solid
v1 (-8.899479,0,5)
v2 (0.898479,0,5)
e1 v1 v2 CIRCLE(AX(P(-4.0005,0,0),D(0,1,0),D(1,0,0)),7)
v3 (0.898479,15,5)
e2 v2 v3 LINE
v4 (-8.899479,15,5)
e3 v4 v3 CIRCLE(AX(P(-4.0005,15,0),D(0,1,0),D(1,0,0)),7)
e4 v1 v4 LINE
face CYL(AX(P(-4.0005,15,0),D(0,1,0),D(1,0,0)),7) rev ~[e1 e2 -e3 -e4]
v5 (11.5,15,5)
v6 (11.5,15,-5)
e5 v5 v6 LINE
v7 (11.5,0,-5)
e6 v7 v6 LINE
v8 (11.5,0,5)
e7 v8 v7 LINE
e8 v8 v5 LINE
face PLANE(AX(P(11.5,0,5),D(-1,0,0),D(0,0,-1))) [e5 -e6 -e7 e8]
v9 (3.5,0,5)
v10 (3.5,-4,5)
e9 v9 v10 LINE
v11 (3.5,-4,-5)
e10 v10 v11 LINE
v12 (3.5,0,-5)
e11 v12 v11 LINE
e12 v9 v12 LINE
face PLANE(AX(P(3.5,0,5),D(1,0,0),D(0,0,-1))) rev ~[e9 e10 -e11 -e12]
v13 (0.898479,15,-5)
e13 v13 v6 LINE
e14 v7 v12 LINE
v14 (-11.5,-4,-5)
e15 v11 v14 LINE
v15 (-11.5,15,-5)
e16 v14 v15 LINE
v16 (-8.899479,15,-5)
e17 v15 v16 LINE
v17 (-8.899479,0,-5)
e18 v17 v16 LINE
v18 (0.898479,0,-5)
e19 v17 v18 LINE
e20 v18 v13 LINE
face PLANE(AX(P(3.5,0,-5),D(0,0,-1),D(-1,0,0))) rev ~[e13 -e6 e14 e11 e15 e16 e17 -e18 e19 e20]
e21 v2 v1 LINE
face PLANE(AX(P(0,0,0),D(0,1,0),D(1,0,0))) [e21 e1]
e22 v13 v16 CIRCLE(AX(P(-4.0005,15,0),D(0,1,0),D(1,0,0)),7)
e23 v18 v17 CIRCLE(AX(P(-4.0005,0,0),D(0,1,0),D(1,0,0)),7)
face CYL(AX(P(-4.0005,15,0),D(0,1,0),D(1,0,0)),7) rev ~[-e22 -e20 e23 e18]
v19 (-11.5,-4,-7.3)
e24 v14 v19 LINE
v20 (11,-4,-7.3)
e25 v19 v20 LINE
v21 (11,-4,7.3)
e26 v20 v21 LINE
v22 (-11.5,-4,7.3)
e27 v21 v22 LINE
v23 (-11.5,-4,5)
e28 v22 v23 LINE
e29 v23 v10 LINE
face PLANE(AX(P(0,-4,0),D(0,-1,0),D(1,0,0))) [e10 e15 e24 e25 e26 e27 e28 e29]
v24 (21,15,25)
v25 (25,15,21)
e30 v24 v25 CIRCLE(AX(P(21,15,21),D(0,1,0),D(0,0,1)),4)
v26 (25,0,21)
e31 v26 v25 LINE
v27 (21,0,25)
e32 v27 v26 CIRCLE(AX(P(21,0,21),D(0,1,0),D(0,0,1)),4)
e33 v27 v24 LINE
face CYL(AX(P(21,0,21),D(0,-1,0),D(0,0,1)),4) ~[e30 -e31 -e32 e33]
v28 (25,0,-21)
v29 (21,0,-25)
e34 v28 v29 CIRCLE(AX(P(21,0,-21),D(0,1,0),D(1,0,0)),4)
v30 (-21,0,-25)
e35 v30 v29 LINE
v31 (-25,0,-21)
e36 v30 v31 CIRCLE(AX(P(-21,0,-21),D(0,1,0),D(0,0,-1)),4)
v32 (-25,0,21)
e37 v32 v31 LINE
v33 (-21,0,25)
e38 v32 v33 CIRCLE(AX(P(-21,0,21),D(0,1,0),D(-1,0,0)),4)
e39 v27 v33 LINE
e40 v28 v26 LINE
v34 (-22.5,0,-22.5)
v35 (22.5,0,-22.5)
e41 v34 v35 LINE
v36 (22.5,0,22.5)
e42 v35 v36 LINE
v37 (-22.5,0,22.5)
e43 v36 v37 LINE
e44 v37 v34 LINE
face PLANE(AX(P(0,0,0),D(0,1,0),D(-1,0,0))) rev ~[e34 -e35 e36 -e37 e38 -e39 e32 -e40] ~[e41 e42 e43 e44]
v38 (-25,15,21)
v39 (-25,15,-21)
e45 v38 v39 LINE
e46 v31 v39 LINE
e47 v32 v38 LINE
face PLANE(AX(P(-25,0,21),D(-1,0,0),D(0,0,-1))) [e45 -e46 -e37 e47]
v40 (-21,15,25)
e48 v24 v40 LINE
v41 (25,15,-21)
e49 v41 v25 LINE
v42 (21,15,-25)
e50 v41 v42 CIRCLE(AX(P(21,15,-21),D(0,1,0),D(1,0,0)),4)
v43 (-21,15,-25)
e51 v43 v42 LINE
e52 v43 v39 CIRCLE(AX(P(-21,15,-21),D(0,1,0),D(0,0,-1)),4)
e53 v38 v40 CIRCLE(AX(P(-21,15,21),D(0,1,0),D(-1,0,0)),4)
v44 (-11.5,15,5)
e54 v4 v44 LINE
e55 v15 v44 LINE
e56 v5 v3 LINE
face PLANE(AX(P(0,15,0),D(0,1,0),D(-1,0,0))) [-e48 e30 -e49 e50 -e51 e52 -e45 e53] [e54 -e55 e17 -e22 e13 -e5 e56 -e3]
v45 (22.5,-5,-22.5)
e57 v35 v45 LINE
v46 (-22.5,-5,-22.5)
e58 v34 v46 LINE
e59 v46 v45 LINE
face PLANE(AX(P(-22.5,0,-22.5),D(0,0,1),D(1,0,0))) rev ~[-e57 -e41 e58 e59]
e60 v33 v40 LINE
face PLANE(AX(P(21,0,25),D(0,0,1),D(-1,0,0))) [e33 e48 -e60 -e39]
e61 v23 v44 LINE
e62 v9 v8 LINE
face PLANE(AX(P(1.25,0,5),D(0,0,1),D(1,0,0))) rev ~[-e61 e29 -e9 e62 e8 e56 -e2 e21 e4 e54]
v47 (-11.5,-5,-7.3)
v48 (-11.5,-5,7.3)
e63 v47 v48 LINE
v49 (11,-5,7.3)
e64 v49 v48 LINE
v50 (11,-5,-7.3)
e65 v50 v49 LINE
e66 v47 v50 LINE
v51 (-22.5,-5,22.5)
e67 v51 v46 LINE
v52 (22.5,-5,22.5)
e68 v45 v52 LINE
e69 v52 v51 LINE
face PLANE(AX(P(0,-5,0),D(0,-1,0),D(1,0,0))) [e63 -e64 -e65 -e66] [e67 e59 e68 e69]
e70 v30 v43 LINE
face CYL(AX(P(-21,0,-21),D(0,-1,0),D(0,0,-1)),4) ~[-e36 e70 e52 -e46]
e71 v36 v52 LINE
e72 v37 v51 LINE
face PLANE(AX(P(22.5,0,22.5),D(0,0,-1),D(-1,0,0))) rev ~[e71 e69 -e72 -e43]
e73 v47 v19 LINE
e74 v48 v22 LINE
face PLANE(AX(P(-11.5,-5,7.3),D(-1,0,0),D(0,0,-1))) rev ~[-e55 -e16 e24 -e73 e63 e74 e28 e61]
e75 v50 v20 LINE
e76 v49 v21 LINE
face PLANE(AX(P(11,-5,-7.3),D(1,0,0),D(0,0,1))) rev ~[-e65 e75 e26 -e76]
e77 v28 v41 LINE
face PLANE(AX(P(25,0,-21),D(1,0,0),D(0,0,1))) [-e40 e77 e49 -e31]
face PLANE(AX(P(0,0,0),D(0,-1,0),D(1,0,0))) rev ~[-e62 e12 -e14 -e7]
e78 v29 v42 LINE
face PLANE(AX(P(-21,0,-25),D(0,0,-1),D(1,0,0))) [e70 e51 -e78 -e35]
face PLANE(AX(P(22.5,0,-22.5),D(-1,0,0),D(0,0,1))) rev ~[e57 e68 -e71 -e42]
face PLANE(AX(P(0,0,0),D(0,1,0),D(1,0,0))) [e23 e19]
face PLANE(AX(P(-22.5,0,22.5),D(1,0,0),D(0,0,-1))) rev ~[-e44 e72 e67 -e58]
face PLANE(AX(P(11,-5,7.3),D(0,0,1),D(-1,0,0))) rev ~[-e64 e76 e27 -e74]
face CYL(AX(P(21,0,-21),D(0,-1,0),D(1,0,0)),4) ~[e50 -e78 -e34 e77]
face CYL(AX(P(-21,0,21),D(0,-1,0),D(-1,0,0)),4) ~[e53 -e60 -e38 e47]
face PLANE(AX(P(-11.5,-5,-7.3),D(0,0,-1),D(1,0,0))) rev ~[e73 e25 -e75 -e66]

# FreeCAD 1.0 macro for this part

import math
import FreeCAD as App
import Part
import Sketcher
from FreeCAD import Vector


def add_polygon(sketch, points):
    """Adds a closed chain of lines whose ends are joined by coincident constraints."""
    first, n = sketch.GeometryCount, len(points)
    for a, b in zip(points, points[1:] + points[:1]):
        sketch.addGeometry(Part.LineSegment(App.Vector(*a, 0), App.Vector(*b, 0)), False)
    for i in range(n):
        sketch.addConstraint(Sketcher.Constraint("Coincident", first + i, 2, first + (i + 1) % n, 1))

doc = App.newDocument("Part")
body = doc.addObject("PartDesign::Body", "Body")

# Sketch on XZ plane
sketch1 = body.newObject("Sketcher::SketchObject", "Sketch")
sketch1.AttachmentSupport = (doc.getObject("XZ_Plane"), [""])
sketch1.MapMode = "FlatFace"
sketch1.addGeometry(Part.LineSegment(Vector(-21, 25, 0), Vector(21, 25, 0)), False)  # 0
sketch1.addGeometry(Part.ArcOfCircle(Part.Circle(Vector(21, 21, 0), Vector(0, 0, 1), 4), math.radians(0), math.radians(90)), False)  # 1
sketch1.addGeometry(Part.LineSegment(Vector(25, 21, 0), Vector(25, -21, 0)), False)  # 2
sketch1.addGeometry(Part.ArcOfCircle(Part.Circle(Vector(21, -21, 0), Vector(0, 0, 1), 4), math.radians(-90), math.radians(0)), False)  # 3
sketch1.addGeometry(Part.LineSegment(Vector(21, -25, 0), Vector(-21, -25, 0)), False)  # 4
sketch1.addGeometry(Part.ArcOfCircle(Part.Circle(Vector(-21, -21, 0), Vector(0, 0, 1), 4), math.radians(180), math.radians(270)), False)  # 5
sketch1.addGeometry(Part.LineSegment(Vector(-25, -21, 0), Vector(-25, 21, 0)), False)  # 6
sketch1.addGeometry(Part.ArcOfCircle(Part.Circle(Vector(-21, 21, 0), Vector(0, 0, 1), 4), math.radians(90), math.radians(180)), False)  # 7
add_polygon(sketch1, [(11.5, -5), (11.5, 5), (-11.5, 5), (-11.5, -5)])  # lines 8-11
sketch1.addConstraint([
    Sketcher.Constraint("Tangent", 0, 2, 1, 2),
    Sketcher.Constraint("Tangent", 1, 1, 2, 1),
    Sketcher.Constraint("Tangent", 2, 2, 3, 2),
    Sketcher.Constraint("Tangent", 3, 1, 4, 1),
    Sketcher.Constraint("Tangent", 4, 2, 5, 2),
    Sketcher.Constraint("Tangent", 5, 1, 6, 1),
    Sketcher.Constraint("Tangent", 6, 2, 7, 2),
    Sketcher.Constraint("Tangent", 7, 1, 0, 1),
    Sketcher.Constraint("Horizontal", 0),
    Sketcher.Constraint("Vertical", 2),
    Sketcher.Constraint("Horizontal", 4),
    Sketcher.Constraint("Vertical", 6),
    Sketcher.Constraint("Vertical", 8),
    Sketcher.Constraint("Horizontal", 9),
    Sketcher.Constraint("Vertical", 10),
    Sketcher.Constraint("Horizontal", 11),
    Sketcher.Constraint("Equal", 1, 3),
    Sketcher.Constraint("Equal", 3, 5),
    Sketcher.Constraint("Equal", 5, 7),
    Sketcher.Constraint("Symmetric", 1, 3, 5, 3, -1, 1),
    Sketcher.Constraint("Symmetric", 8, 2, 10, 2, -1, 1),
    Sketcher.Constraint("Equal", 4, 2),
    Sketcher.Constraint("Radius", 1, 4.0),
    Sketcher.Constraint("DistanceX", 9, 2, 9, 1, 23.0),
    Sketcher.Constraint("DistanceY", 8, 1, 8, 2, 10.0),
    Sketcher.Constraint("DistanceX", 0, 1, 0, 2, 42.0),
])
pad1 = body.newObject("PartDesign::Pad", "Pad")
pad1.Profile = sketch1
pad1.Length = 15
pad1.Reversed = True

# Sketch on XZ plane
sketch2 = body.newObject("Sketcher::SketchObject", "Sketch001")
sketch2.AttachmentSupport = (doc.getObject("XZ_Plane"), [""])
sketch2.MapMode = "FlatFace"
add_polygon(sketch2, [(22, -22), (22, 22), (-22, 22), (-22, -22)])  # lines 0-3
sketch2.addConstraint([
    Sketcher.Constraint("Vertical", 0),
    Sketcher.Constraint("Horizontal", 1),
    Sketcher.Constraint("Vertical", 2),
    Sketcher.Constraint("Horizontal", 3),
    Sketcher.Constraint("Symmetric", 0, 2, 2, 2, -1, 1),
    Sketcher.Constraint("Equal", 3, 0),
    Sketcher.Constraint("DistanceX", 1, 2, 1, 1, 45.0),
])
pad2 = body.newObject("PartDesign::Pad", "Pad001")
pad2.Profile = sketch2
pad2.Length = 5

# Sketch on XZ plane
sketch3 = body.newObject("Sketcher::SketchObject", "Sketch002")
sketch3.AttachmentSupport = (doc.getObject("XZ_Plane"), [""])
sketch3.MapMode = "FlatFace"
add_polygon(sketch3, [(4, 5), (4, -5), (-12, -5), (-12, 5)])  # lines 0-3
sketch3.addConstraint([
    Sketcher.Constraint("Vertical", 0),
    Sketcher.Constraint("Horizontal", 1),
    Sketcher.Constraint("Vertical", 2),
    Sketcher.Constraint("Horizontal", 3),
    Sketcher.Constraint("DistanceY", 0, 2, 0, 1, 10.0),
    Sketcher.Constraint("DistanceX", 1, 2, 1, 1, 15.0),
    Sketcher.Constraint("DistanceY", 0, 2, -1, 1, 5.0),
    Sketcher.Constraint("DistanceX", -1, 1, 0, 2, 3.5),
])
pocket1 = body.newObject("PartDesign::Pocket", "Pocket")
pocket1.Profile = sketch3
pocket1.Type = "ThroughAll"
pocket1.Reversed = True

# Sketch on XZ plane
sketch4 = body.newObject("Sketcher::SketchObject", "Sketch003")
sketch4.AttachmentSupport = (doc.getObject("XZ_Plane"), [""])
sketch4.MapMode = "FlatFace"
sketch4.AttachmentOffset = App.Placement(Vector(0, 0, -15), App.Rotation())
sketch4.addGeometry(Part.Circle(Vector(-4, 0, 0), Vector(0, 0, 1), 7), False)
sketch4.addConstraint([
    Sketcher.Constraint("PointOnObject", 0, 3, -1),
    Sketcher.Constraint("Diameter", 0, 14.0),
    Sketcher.Constraint("DistanceX", 0, 3, -1, 1, 4.0005),
])
pocket2 = body.newObject("PartDesign::Pocket", "Pocket001")
pocket2.Profile = sketch4
pocket2.Length = 15
pocket2.Reversed = True

# Sketch on XZ plane
sketch5 = body.newObject("Sketcher::SketchObject", "Sketch004")
sketch5.AttachmentSupport = (doc.getObject("XZ_Plane"), [""])
sketch5.MapMode = "FlatFace"
sketch5.AttachmentOffset = App.Placement(Vector(0, 0, 5), App.Rotation())
add_polygon(sketch5, [(-12, 7), (-12, -7), (11, -7), (11, 7)])  # lines 0-3
sketch5.addConstraint([
    Sketcher.Constraint("Vertical", 0),
    Sketcher.Constraint("Horizontal", 1),
    Sketcher.Constraint("Vertical", 2),
    Sketcher.Constraint("Horizontal", 3),
    Sketcher.Constraint("DistanceX", 1, 1, 1, 2, 22.5),
    Sketcher.Constraint("DistanceY", 0, 2, 0, 1, 14.6),
    Sketcher.Constraint("DistanceX", 0, 2, -1, 1, 11.5),
    Sketcher.Constraint("DistanceY", 0, 2, -1, 1, 7.3),
])
pocket3 = body.newObject("PartDesign::Pocket", "Pocket002")
pocket3.Profile = sketch5
pocket3.Length = 1

doc.recompute()
